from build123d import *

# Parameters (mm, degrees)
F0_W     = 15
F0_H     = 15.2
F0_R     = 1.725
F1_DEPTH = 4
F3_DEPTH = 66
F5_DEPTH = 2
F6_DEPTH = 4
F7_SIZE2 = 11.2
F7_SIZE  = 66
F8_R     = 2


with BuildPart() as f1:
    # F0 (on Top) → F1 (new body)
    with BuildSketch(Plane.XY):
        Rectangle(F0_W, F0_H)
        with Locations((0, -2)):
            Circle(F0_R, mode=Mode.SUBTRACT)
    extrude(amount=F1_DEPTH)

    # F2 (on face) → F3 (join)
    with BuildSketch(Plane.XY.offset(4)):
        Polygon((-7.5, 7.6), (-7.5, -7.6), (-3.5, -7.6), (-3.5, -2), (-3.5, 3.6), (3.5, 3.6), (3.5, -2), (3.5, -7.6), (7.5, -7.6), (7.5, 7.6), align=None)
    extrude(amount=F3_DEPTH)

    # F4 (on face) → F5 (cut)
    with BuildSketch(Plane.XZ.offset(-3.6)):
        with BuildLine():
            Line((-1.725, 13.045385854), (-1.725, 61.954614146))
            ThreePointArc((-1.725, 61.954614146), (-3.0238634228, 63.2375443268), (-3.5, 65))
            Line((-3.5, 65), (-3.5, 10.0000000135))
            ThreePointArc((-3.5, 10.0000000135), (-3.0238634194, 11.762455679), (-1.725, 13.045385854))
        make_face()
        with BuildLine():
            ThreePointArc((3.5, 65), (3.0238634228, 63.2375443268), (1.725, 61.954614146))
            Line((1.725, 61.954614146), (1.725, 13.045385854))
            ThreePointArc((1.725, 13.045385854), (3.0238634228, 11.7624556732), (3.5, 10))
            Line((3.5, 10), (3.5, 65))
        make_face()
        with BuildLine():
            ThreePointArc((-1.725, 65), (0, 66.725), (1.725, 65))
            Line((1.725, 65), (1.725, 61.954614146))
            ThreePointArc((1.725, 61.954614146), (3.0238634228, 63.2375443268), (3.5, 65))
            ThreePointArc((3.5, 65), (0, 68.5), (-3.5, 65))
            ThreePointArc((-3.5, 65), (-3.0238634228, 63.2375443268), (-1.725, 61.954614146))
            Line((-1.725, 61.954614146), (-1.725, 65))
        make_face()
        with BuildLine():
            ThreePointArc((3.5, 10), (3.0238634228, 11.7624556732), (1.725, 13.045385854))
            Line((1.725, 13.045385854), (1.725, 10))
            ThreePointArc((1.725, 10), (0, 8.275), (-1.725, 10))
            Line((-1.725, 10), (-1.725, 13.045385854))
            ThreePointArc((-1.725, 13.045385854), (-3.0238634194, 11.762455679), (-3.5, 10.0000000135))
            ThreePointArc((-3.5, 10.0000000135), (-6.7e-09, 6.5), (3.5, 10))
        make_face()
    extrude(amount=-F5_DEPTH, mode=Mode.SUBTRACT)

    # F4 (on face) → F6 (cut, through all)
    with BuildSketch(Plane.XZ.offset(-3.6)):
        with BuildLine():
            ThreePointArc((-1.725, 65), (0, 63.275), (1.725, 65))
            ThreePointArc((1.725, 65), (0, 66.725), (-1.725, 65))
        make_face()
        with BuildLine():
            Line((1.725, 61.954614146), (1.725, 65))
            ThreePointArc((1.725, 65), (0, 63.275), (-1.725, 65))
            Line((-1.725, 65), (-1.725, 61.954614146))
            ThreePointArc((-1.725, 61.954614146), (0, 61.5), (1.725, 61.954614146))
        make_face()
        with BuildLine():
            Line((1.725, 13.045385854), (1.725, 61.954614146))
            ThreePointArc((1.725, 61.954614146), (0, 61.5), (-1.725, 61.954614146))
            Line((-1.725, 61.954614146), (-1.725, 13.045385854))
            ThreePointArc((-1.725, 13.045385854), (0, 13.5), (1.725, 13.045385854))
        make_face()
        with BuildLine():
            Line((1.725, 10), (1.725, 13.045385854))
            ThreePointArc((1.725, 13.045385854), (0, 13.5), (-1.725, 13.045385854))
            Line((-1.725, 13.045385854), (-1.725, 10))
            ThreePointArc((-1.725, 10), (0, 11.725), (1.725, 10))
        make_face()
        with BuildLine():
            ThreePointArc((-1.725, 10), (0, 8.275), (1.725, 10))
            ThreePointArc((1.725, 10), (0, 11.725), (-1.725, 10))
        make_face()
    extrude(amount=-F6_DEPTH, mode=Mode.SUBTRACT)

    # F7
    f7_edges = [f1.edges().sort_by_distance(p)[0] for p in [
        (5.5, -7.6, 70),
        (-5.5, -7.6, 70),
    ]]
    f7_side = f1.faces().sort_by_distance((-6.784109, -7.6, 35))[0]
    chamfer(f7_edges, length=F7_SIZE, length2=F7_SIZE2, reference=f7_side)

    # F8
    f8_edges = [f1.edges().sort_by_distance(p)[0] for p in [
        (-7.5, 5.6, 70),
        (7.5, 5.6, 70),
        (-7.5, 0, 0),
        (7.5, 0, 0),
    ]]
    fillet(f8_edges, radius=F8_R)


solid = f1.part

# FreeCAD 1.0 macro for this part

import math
import FreeCAD as App
import Part
import Sketcher
from FreeCAD import Vector


def edges_at(feature, points):
    """Names of the edges that pass closest to the given points."""
    edges = feature.Shape.Edges
    near = lambda p: min(range(len(edges)), key=lambda i: edges[i].distToShape(Part.Vertex(*p))[0])
    return sorted({f"Edge{near(p) + 1}" for p in points})

doc = App.newDocument("Part")
body = doc.addObject("PartDesign::Body", "Body")

# Sketch on XY plane
sketch1 = body.newObject("Sketcher::SketchObject", "Sketch")
sketch1.AttachmentSupport = (doc.getObject("XY_Plane"), [""])
sketch1.MapMode = "FlatFace"
sketch1.addGeometry(Part.LineSegment(Vector(-7.5, 7.6, 0), Vector(-7.5, -7.6, 0)), False)
sketch1.addGeometry(Part.LineSegment(Vector(-7.5, -7.6, 0), Vector(7.5, -7.6, 0)), False)
sketch1.addGeometry(Part.LineSegment(Vector(7.5, -7.6, 0), Vector(7.5, 7.6, 0)), False)
sketch1.addGeometry(Part.LineSegment(Vector(7.5, 7.6, 0), Vector(-7.5, 7.6, 0)), False)
sketch1.addGeometry(Part.Circle(Vector(0, -2, 0), Vector(0, 0, 1), 1.725), False)
sketch1.addConstraint(Sketcher.Constraint("Coincident", 0, 2, 1, 1))
sketch1.addConstraint(Sketcher.Constraint("Coincident", 1, 2, 2, 1))
sketch1.addConstraint(Sketcher.Constraint("Coincident", 2, 2, 3, 1))
sketch1.addConstraint(Sketcher.Constraint("Coincident", 3, 2, 0, 1))
sketch1.addConstraint(Sketcher.Constraint("Vertical", 0))
sketch1.addConstraint(Sketcher.Constraint("Horizontal", 1))
sketch1.addConstraint(Sketcher.Constraint("Vertical", 2))
sketch1.addConstraint(Sketcher.Constraint("Horizontal", 3))
sketch1.addConstraint(Sketcher.Constraint("Symmetric", 0, 2, 2, 2, -1, 1))
sketch1.addConstraint(Sketcher.Constraint("PointOnObject", 4, 3, -2))
sketch1.addConstraint(Sketcher.Constraint("Diameter", 4, 3.45))
sketch1.addConstraint(Sketcher.Constraint("DistanceX", 1, 1, 1, 2, 15.0))
sketch1.addConstraint(Sketcher.Constraint("DistanceY", 0, 2, 0, 1, 15.2))
sketch1.addConstraint(Sketcher.Constraint("DistanceY", 4, 3, -1, 1, 2.0))
pad1 = body.newObject("PartDesign::Pad", "Pad")
pad1.Profile = sketch1
pad1.Length = 4

# Sketch on XY plane
sketch2 = body.newObject("Sketcher::SketchObject", "Sketch001")
sketch2.AttachmentSupport = (doc.getObject("XY_Plane"), [""])
sketch2.MapMode = "FlatFace"
sketch2.AttachmentOffset = App.Placement(Vector(0, 0, 4), App.Rotation())
sketch2.addGeometry(Part.LineSegment(Vector(-7.5, 7.6, 0), Vector(-7.5, -7.6, 0)), False)
sketch2.addGeometry(Part.LineSegment(Vector(-7.5, -7.6, 0), Vector(-3.5, -7.6, 0)), False)
sketch2.addGeometry(Part.LineSegment(Vector(-3.5, -7.6, 0), Vector(-3.5, 3.6, 0)), False)
sketch2.addGeometry(Part.LineSegment(Vector(-3.5, 3.6, 0), Vector(3.5, 3.6, 0)), False)
sketch2.addGeometry(Part.LineSegment(Vector(3.5, 3.6, 0), Vector(3.5, -7.6, 0)), False)
sketch2.addGeometry(Part.LineSegment(Vector(3.5, -7.6, 0), Vector(7.5, -7.6, 0)), False)
sketch2.addGeometry(Part.LineSegment(Vector(7.5, -7.6, 0), Vector(7.5, 7.6, 0)), False)
sketch2.addGeometry(Part.LineSegment(Vector(7.5, 7.6, 0), Vector(-7.5, 7.6, 0)), False)
sketch2.addConstraint(Sketcher.Constraint("Coincident", 0, 2, 1, 1))
sketch2.addConstraint(Sketcher.Constraint("Coincident", 1, 2, 2, 1))
sketch2.addConstraint(Sketcher.Constraint("Coincident", 2, 2, 3, 1))
sketch2.addConstraint(Sketcher.Constraint("Coincident", 3, 2, 4, 1))
sketch2.addConstraint(Sketcher.Constraint("Coincident", 4, 2, 5, 1))
sketch2.addConstraint(Sketcher.Constraint("Coincident", 5, 2, 6, 1))
sketch2.addConstraint(Sketcher.Constraint("Coincident", 6, 2, 7, 1))
sketch2.addConstraint(Sketcher.Constraint("Coincident", 7, 2, 0, 1))
sketch2.addConstraint(Sketcher.Constraint("Vertical", 0))
sketch2.addConstraint(Sketcher.Constraint("Horizontal", 1))
sketch2.addConstraint(Sketcher.Constraint("Vertical", 2))
sketch2.addConstraint(Sketcher.Constraint("Horizontal", 3))
sketch2.addConstraint(Sketcher.Constraint("Vertical", 4))
sketch2.addConstraint(Sketcher.Constraint("Horizontal", 5))
sketch2.addConstraint(Sketcher.Constraint("Vertical", 6))
sketch2.addConstraint(Sketcher.Constraint("Horizontal", 7))
sketch2.addConstraint(Sketcher.Constraint("Symmetric", 0, 2, 6, 2, -1, 1))
sketch2.addConstraint(Sketcher.Constraint("Symmetric", 1, 2, 4, 2, -2))
sketch2.addConstraint(Sketcher.Constraint("DistanceX", 1, 1, 1, 2, 4.0))
sketch2.addConstraint(Sketcher.Constraint("DistanceX", 3, 1, 3, 2, 7.0))
sketch2.addConstraint(Sketcher.Constraint("DistanceY", 0, 2, 0, 1, 15.2))
sketch2.addConstraint(Sketcher.Constraint("DistanceY", 2, 1, 2, 2, 11.2))
pad2 = body.newObject("PartDesign::Pad", "Pad001")
pad2.Profile = sketch2
pad2.Length = 66

# Sketch on XZ plane
sketch3 = body.newObject("Sketcher::SketchObject", "Sketch002")
sketch3.AttachmentSupport = (doc.getObject("XZ_Plane"), [""])
sketch3.MapMode = "FlatFace"
sketch3.AttachmentOffset = App.Placement(Vector(0, 0, -3.6), App.Rotation())
sketch3.addGeometry(Part.LineSegment(Vector(3.5, 10, 0), Vector(3.5, 65, 0)), False)
sketch3.addGeometry(Part.ArcOfCircle(Part.Circle(Vector(0, 65, 0), Vector(0, 0, 1), 3.5), math.radians(0), math.radians(180)), False)
sketch3.addGeometry(Part.LineSegment(Vector(-3.5, 65, 0), Vector(-3.5, 10, 0)), False)
sketch3.addGeometry(Part.ArcOfCircle(Part.Circle(Vector(0, 10, 0), Vector(0, 0, 1), 3.5), math.radians(180), math.radians(360)), False)
sketch3.addGeometry(Part.ArcOfCircle(Part.Circle(Vector(0, 65, 0), Vector(0, 0, 1), 1.725), math.radians(0), math.radians(180)), False)
sketch3.addGeometry(Part.LineSegment(Vector(1.725, 65, 0), Vector(1.725, 10, 0)), False)
sketch3.addGeometry(Part.ArcOfCircle(Part.Circle(Vector(0, 10, 0), Vector(0, 0, 1), 1.725), math.radians(180), math.radians(360)), False)
sketch3.addGeometry(Part.LineSegment(Vector(-1.725, 10, 0), Vector(-1.725, 65, 0)), False)
sketch3.addConstraint(Sketcher.Constraint("Tangent", 0, 2, 1, 1))
sketch3.addConstraint(Sketcher.Constraint("Tangent", 1, 2, 2, 1))
sketch3.addConstraint(Sketcher.Constraint("Tangent", 2, 2, 3, 1))
sketch3.addConstraint(Sketcher.Constraint("Tangent", 3, 2, 0, 1))
sketch3.addConstraint(Sketcher.Constraint("Tangent", 4, 1, 5, 1))
sketch3.addConstraint(Sketcher.Constraint("Tangent", 5, 2, 6, 2))
sketch3.addConstraint(Sketcher.Constraint("Tangent", 6, 1, 7, 1))
sketch3.addConstraint(Sketcher.Constraint("Tangent", 7, 2, 4, 2))
sketch3.addConstraint(Sketcher.Constraint("Vertical", 0))
sketch3.addConstraint(Sketcher.Constraint("Vertical", 2))
sketch3.addConstraint(Sketcher.Constraint("Vertical", 5))
sketch3.addConstraint(Sketcher.Constraint("Vertical", 7))
sketch3.addConstraint(Sketcher.Constraint("Coincident", 4, 3, 1, 3))
sketch3.addConstraint(Sketcher.Constraint("PointOnObject", 1, 3, -2))
sketch3.addConstraint(Sketcher.Constraint("Horizontal", 6, 3, 2, 2))
sketch3.addConstraint(Sketcher.Constraint("Radius", 1, 3.5))
sketch3.addConstraint(Sketcher.Constraint("DistanceY", 0, 1, 0, 2, 55.0))
sketch3.addConstraint(Sketcher.Constraint("DistanceY", -1, 1, 1, 3, 65.0))
sketch3.addConstraint(Sketcher.Constraint("Radius", 4, 1.725))
pocket1 = body.newObject("PartDesign::Pocket", "Pocket")
pocket1.Profile = sketch3
pocket1.Length = 2

# Sketch on XZ plane
sketch4 = body.newObject("Sketcher::SketchObject", "Sketch003")
sketch4.AttachmentSupport = (doc.getObject("XZ_Plane"), [""])
sketch4.MapMode = "FlatFace"
sketch4.AttachmentOffset = App.Placement(Vector(0, 0, -3.6), App.Rotation())
sketch4.addGeometry(Part.ArcOfCircle(Part.Circle(Vector(0, 65, 0), Vector(0, 0, 1), 1.725), math.radians(0), math.radians(180)), False)
sketch4.addGeometry(Part.LineSegment(Vector(-1.725, 65, 0), Vector(-1.725, 10, 0)), False)
sketch4.addGeometry(Part.ArcOfCircle(Part.Circle(Vector(0, 10, 0), Vector(0, 0, 1), 1.725), math.radians(180), math.radians(360)), False)
sketch4.addGeometry(Part.LineSegment(Vector(1.725, 10, 0), Vector(1.725, 65, 0)), False)
sketch4.addConstraint(Sketcher.Constraint("Tangent", 0, 2, 1, 1))
sketch4.addConstraint(Sketcher.Constraint("Tangent", 1, 2, 2, 1))
sketch4.addConstraint(Sketcher.Constraint("Tangent", 2, 2, 3, 1))
sketch4.addConstraint(Sketcher.Constraint("Tangent", 3, 2, 0, 1))
sketch4.addConstraint(Sketcher.Constraint("Vertical", 1))
sketch4.addConstraint(Sketcher.Constraint("Vertical", 3))
sketch4.addConstraint(Sketcher.Constraint("PointOnObject", 0, 3, -2))
sketch4.addConstraint(Sketcher.Constraint("DistanceY", 1, 2, 1, 1, 55.0))
sketch4.addConstraint(Sketcher.Constraint("DistanceY", -1, 1, 0, 3, 65.0))
sketch4.addConstraint(Sketcher.Constraint("Radius", 0, 1.725))
pocket2 = body.newObject("PartDesign::Pocket", "Pocket001")
pocket2.Profile = sketch4
pocket2.Type = "ThroughAll"
doc.recompute()

chamfer = body.newObject("PartDesign::Chamfer", "Chamfer")
chamfer.Base = (pocket2, edges_at(pocket2, [(5.5, -7.6, 70), (-5.5, -7.6, 70)]))
chamfer.ChamferType = "Two distances"
chamfer.Size = 66
chamfer.Size2 = 11.2
doc.recompute()

fillet = body.newObject("PartDesign::Fillet", "Fillet")
fillet.Base = (chamfer, edges_at(chamfer, [
    (-7.5, 5.6, 70),
    (7.5, 5.6, 70),
    (-7.5, 0, 0),
    (7.5, 0, 0),
]))
fillet.Radius = 2

doc.recompute()
